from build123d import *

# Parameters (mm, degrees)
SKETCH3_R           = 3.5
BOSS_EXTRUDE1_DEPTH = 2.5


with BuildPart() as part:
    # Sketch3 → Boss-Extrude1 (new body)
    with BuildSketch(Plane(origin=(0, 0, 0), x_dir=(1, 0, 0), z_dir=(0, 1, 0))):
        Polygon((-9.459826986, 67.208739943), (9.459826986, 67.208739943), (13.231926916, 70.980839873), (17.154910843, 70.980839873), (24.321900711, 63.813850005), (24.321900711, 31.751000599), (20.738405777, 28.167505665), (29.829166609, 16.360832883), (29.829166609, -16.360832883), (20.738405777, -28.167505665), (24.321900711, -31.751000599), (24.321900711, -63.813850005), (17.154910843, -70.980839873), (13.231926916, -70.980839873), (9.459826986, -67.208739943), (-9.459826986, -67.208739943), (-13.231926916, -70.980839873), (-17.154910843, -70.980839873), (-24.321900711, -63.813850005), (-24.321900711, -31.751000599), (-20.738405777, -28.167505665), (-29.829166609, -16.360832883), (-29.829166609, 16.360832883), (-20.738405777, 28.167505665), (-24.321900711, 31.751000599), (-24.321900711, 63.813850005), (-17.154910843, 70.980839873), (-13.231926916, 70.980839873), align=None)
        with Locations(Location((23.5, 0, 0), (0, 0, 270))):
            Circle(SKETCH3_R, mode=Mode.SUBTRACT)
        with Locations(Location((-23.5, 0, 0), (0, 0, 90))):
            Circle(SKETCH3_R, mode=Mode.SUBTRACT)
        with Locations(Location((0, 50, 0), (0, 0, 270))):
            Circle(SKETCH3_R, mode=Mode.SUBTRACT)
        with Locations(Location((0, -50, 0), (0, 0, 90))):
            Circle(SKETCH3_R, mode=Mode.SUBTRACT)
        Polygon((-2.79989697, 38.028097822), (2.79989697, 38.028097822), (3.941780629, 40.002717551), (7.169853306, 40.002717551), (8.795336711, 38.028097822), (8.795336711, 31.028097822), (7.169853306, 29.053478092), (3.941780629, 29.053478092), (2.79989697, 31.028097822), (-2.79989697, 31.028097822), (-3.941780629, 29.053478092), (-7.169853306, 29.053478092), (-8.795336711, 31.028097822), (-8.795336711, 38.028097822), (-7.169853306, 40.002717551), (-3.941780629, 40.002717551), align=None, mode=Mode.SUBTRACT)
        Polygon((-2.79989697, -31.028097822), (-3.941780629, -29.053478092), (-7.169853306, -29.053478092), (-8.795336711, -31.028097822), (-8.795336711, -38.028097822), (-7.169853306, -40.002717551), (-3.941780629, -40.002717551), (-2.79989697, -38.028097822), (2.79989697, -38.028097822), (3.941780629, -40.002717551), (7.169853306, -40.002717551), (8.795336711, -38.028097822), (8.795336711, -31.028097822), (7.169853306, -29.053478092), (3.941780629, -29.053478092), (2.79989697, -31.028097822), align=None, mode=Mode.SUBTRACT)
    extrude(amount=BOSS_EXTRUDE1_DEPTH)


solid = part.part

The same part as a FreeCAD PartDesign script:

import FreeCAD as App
import Part
import Sketcher

V = App.Vector

doc = App.newDocument("Part")
body = doc.addObject("PartDesign::Body", "Body")

# Sketch on XZ plane
sketch1 = body.newObject("Sketcher::SketchObject", "Sketch")
sketch1.AttachmentSupport = (doc.getObject("XZ_Plane"), [""])
sketch1.MapMode = "FlatFace"
sketch1.addGeometry(Part.LineSegment(V(9.459827, -67.20874, 0), V(-9.459827, -67.20874, 0)), False)
sketch1.addGeometry(Part.LineSegment(V(-9.459827, -67.20874, 0), V(-13.231927, -70.98084, 0)), False)
sketch1.addGeometry(Part.LineSegment(V(-13.231927, -70.98084, 0), V(-17.154911, -70.98084, 0)), False)
sketch1.addGeometry(Part.LineSegment(V(-17.154911, -70.98084, 0), V(-24.321901, -63.81385, 0)), False)
sketch1.addGeometry(Part.LineSegment(V(-24.321901, -63.81385, 0), V(-24.321901, -31.751001, 0)), False)
sketch1.addGeometry(Part.LineSegment(V(-24.321901, -31.751001, 0), V(-20.738406, -28.167506, 0)), False)
sketch1.addGeometry(Part.LineSegment(V(-20.738406, -28.167506, 0), V(-29.829167, -16.360833, 0)), False)
sketch1.addGeometry(Part.LineSegment(V(-29.829167, -16.360833, 0), V(-29.829167, 16.360833, 0)), False)
sketch1.addGeometry(Part.LineSegment(V(-29.829167, 16.360833, 0), V(-20.738406, 28.167506, 0)), False)
sketch1.addGeometry(Part.LineSegment(V(-20.738406, 28.167506, 0), V(-24.321901, 31.751001, 0)), False)
sketch1.addGeometry(Part.LineSegment(V(-24.321901, 31.751001, 0), V(-24.321901, 63.81385, 0)), False)
sketch1.addGeometry(Part.LineSegment(V(-24.321901, 63.81385, 0), V(-17.154911, 70.98084, 0)), False)
sketch1.addGeometry(Part.LineSegment(V(-17.154911, 70.98084, 0), V(-13.231927, 70.98084, 0)), False)
sketch1.addGeometry(Part.LineSegment(V(-13.231927, 70.98084, 0), V(-9.459827, 67.20874, 0)), False)
sketch1.addGeometry(Part.LineSegment(V(-9.459827, 67.20874, 0), V(9.459827, 67.20874, 0)), False)
sketch1.addGeometry(Part.LineSegment(V(9.459827, 67.20874, 0), V(13.231927, 70.98084, 0)), False)
sketch1.addGeometry(Part.LineSegment(V(13.231927, 70.98084, 0), V(17.154911, 70.98084, 0)), False)
sketch1.addGeometry(Part.LineSegment(V(17.154911, 70.98084, 0), V(24.321901, 63.81385, 0)), False)
sketch1.addGeometry(Part.LineSegment(V(24.321901, 63.81385, 0), V(24.321901, 31.751001, 0)), False)
sketch1.addGeometry(Part.LineSegment(V(24.321901, 31.751001, 0), V(20.738406, 28.167506, 0)), False)
sketch1.addGeometry(Part.LineSegment(V(20.738406, 28.167506, 0), V(29.829167, 16.360833, 0)), False)
sketch1.addGeometry(Part.LineSegment(V(29.829167, 16.360833, 0), V(29.829167, -16.360833, 0)), False)
sketch1.addGeometry(Part.LineSegment(V(29.829167, -16.360833, 0), V(20.738406, -28.167506, 0)), False)
sketch1.addGeometry(Part.LineSegment(V(20.738406, -28.167506, 0), V(24.321901, -31.751001, 0)), False)
sketch1.addGeometry(Part.LineSegment(V(24.321901, -31.751001, 0), V(24.321901, -63.81385, 0)), False)
sketch1.addGeometry(Part.LineSegment(V(24.321901, -63.81385, 0), V(17.154911, -70.98084, 0)), False)
sketch1.addGeometry(Part.LineSegment(V(17.154911, -70.98084, 0), V(13.231927, -70.98084, 0)), False)
sketch1.addGeometry(Part.LineSegment(V(13.231927, -70.98084, 0), V(9.459827, -67.20874, 0)), False)
sketch1.addGeometry(Part.Circle(V(23.5, 0, 0), V(0, 0, 1), 3.5), False)
sketch1.addGeometry(Part.Circle(V(0, 50, 0), V(0, 0, 1), 3.5), False)
sketch1.addGeometry(Part.LineSegment(V(-2.799897, 31.028098, 0), V(2.799897, 31.028098, 0)), False)
sketch1.addGeometry(Part.LineSegment(V(2.799897, 31.028098, 0), V(3.941781, 29.053478, 0)), False)
sketch1.addGeometry(Part.LineSegment(V(3.941781, 29.053478, 0), V(7.169853, 29.053478, 0)), False)
sketch1.addGeometry(Part.LineSegment(V(7.169853, 29.053478, 0), V(8.795337, 31.028098, 0)), False)
sketch1.addGeometry(Part.LineSegment(V(8.795337, 31.028098, 0), V(8.795337, 38.028098, 0)), False)
sketch1.addGeometry(Part.LineSegment(V(8.795337, 38.028098, 0), V(7.169853, 40.002718, 0)), False)
sketch1.addGeometry(Part.LineSegment(V(7.169853, 40.002718, 0), V(3.941781, 40.002718, 0)), False)
sketch1.addGeometry(Part.LineSegment(V(3.941781, 40.002718, 0), V(2.799897, 38.028098, 0)), False)
sketch1.addGeometry(Part.LineSegment(V(2.799897, 38.028098, 0), V(-2.799897, 38.028098, 0)), False)
sketch1.addGeometry(Part.LineSegment(V(-2.799897, 38.028098, 0), V(-3.941781, 40.002718, 0)), False)
sketch1.addGeometry(Part.LineSegment(V(-3.941781, 40.002718, 0), V(-7.169853, 40.002718, 0)), False)
sketch1.addGeometry(Part.LineSegment(V(-7.169853, 40.002718, 0), V(-8.795337, 38.028098, 0)), False)
sketch1.addGeometry(Part.LineSegment(V(-8.795337, 38.028098, 0), V(-8.795337, 31.028098, 0)), False)
sketch1.addGeometry(Part.LineSegment(V(-8.795337, 31.028098, 0), V(-7.169853, 29.053478, 0)), False)
sketch1.addGeometry(Part.LineSegment(V(-7.169853, 29.053478, 0), V(-3.941781, 29.053478, 0)), False)
sketch1.addGeometry(Part.LineSegment(V(-3.941781, 29.053478, 0), V(-2.799897, 31.028098, 0)), False)
sketch1.addGeometry(Part.Circle(V(-23.5, 0, 0), V(0, 0, 1), 3.5), False)
sketch1.addGeometry(Part.LineSegment(V(-2.799897, -38.028098, 0), V(2.799897, -38.028098, 0)), False)
sketch1.addGeometry(Part.LineSegment(V(2.799897, -38.028098, 0), V(3.941781, -40.002718, 0)), False)
sketch1.addGeometry(Part.LineSegment(V(3.941781, -40.002718, 0), V(7.169853, -40.002718, 0)), False)
sketch1.addGeometry(Part.LineSegment(V(7.169853, -40.002718, 0), V(8.795337, -38.028098, 0)), False)
sketch1.addGeometry(Part.LineSegment(V(8.795337, -38.028098, 0), V(8.795337, -31.028098, 0)), False)
sketch1.addGeometry(Part.LineSegment(V(8.795337, -31.028098, 0), V(7.169853, -29.053478, 0)), False)
sketch1.addGeometry(Part.LineSegment(V(7.169853, -29.053478, 0), V(3.941781, -29.053478, 0)), False)
sketch1.addGeometry(Part.LineSegment(V(3.941781, -29.053478, 0), V(2.799897, -31.028098, 0)), False)
sketch1.addGeometry(Part.LineSegment(V(2.799897, -31.028098, 0), V(-2.799897, -31.028098, 0)), False)
sketch1.addGeometry(Part.LineSegment(V(-2.799897, -31.028098, 0), V(-3.941781, -29.053478, 0)), False)
sketch1.addGeometry(Part.LineSegment(V(-3.941781, -29.053478, 0), V(-7.169853, -29.053478, 0)), False)
sketch1.addGeometry(Part.LineSegment(V(-7.169853, -29.053478, 0), V(-8.795337, -31.028098, 0)), False)
sketch1.addGeometry(Part.LineSegment(V(-8.795337, -31.028098, 0), V(-8.795337, -38.028098, 0)), False)
sketch1.addGeometry(Part.LineSegment(V(-8.795337, -38.028098, 0), V(-7.169853, -40.002718, 0)), False)
sketch1.addGeometry(Part.LineSegment(V(-7.169853, -40.002718, 0), V(-3.941781, -40.002718, 0)), False)
sketch1.addGeometry(Part.LineSegment(V(-3.941781, -40.002718, 0), V(-2.799897, -38.028098, 0)), False)
sketch1.addGeometry(Part.Circle(V(0, -50, 0), V(0, 0, 1), 3.5), False)
sketch1.addConstraint(Sketcher.Constraint("Coincident", 0, 2, 1, 1))
sketch1.addConstraint(Sketcher.Constraint("Coincident", 1, 2, 2, 1))
sketch1.addConstraint(Sketcher.Constraint("Coincident", 2, 2, 3, 1))
sketch1.addConstraint(Sketcher.Constraint("Coincident", 3, 2, 4, 1))
sketch1.addConstraint(Sketcher.Constraint("Coincident", 4, 2, 5, 1))
sketch1.addConstraint(Sketcher.Constraint("Coincident", 5, 2, 6, 1))
sketch1.addConstraint(Sketcher.Constraint("Coincident", 6, 2, 7, 1))
sketch1.addConstraint(Sketcher.Constraint("Coincident", 7, 2, 8, 1))
sketch1.addConstraint(Sketcher.Constraint("Coincident", 8, 2, 9, 1))
sketch1.addConstraint(Sketcher.Constraint("Coincident", 9, 2, 10, 1))
sketch1.addConstraint(Sketcher.Constraint("Coincident", 10, 2, 11, 1))
sketch1.addConstraint(Sketcher.Constraint("Coincident", 11, 2, 12, 1))
sketch1.addConstraint(Sketcher.Constraint("Coincident", 12, 2, 13, 1))
sketch1.addConstraint(Sketcher.Constraint("Coincident", 13, 2, 14, 1))
sketch1.addConstraint(Sketcher.Constraint("Coincident", 14, 2, 15, 1))
sketch1.addConstraint(Sketcher.Constraint("Coincident", 15, 2, 16, 1))
sketch1.addConstraint(Sketcher.Constraint("Coincident", 16, 2, 17, 1))
sketch1.addConstraint(Sketcher.Constraint("Coincident", 17, 2, 18, 1))
sketch1.addConstraint(Sketcher.Constraint("Coincident", 18, 2, 19, 1))
sketch1.addConstraint(Sketcher.Constraint("Coincident", 19, 2, 20, 1))
sketch1.addConstraint(Sketcher.Constraint("Coincident", 20, 2, 21, 1))
sketch1.addConstraint(Sketcher.Constraint("Coincident", 21, 2, 22, 1))
sketch1.addConstraint(Sketcher.Constraint("Coincident", 22, 2, 23, 1))
sketch1.addConstraint(Sketcher.Constraint("Coincident", 23, 2, 24, 1))
sketch1.addConstraint(Sketcher.Constraint("Coincident", 24, 2, 25, 1))
sketch1.addConstraint(Sketcher.Constraint("Coincident", 25, 2, 26, 1))
sketch1.addConstraint(Sketcher.Constraint("Coincident", 26, 2, 27, 1))
sketch1.addConstraint(Sketcher.Constraint("Coincident", 27, 2, 0, 1))
sketch1.addConstraint(Sketcher.Constraint("Coincident", 30, 2, 31, 1))
sketch1.addConstraint(Sketcher.Constraint("Coincident", 31, 2, 32, 1))
sketch1.addConstraint(Sketcher.Constraint("Coincident", 32, 2, 33, 1))
sketch1.addConstraint(Sketcher.Constraint("Coincident", 33, 2, 34, 1))
sketch1.addConstraint(Sketcher.Constraint("Coincident", 34, 2, 35, 1))
sketch1.addConstraint(Sketcher.Constraint("Coincident", 35, 2, 36, 1))
sketch1.addConstraint(Sketcher.Constraint("Coincident", 36, 2, 37, 1))
sketch1.addConstraint(Sketcher.Constraint("Coincident", 37, 2, 38, 1))
sketch1.addConstraint(Sketcher.Constraint("Coincident", 38, 2, 39, 1))
sketch1.addConstraint(Sketcher.Constraint("Coincident", 39, 2, 40, 1))
sketch1.addConstraint(Sketcher.Constraint("Coincident", 40, 2, 41, 1))
sketch1.addConstraint(Sketcher.Constraint("Coincident", 41, 2, 42, 1))
sketch1.addConstraint(Sketcher.Constraint("Coincident", 42, 2, 43, 1))
sketch1.addConstraint(Sketcher.Constraint("Coincident", 43, 2, 44, 1))
sketch1.addConstraint(Sketcher.Constraint("Coincident", 44, 2, 45, 1))
sketch1.addConstraint(Sketcher.Constraint("Coincident", 45, 2, 30, 1))
sketch1.addConstraint(Sketcher.Constraint("Coincident", 47, 2, 48, 1))
sketch1.addConstraint(Sketcher.Constraint("Coincident", 48, 2, 49, 1))
sketch1.addConstraint(Sketcher.Constraint("Coincident", 49, 2, 50, 1))
sketch1.addConstraint(Sketcher.Constraint("Coincident", 50, 2, 51, 1))
sketch1.addConstraint(Sketcher.Constraint("Coincident", 51, 2, 52, 1))
sketch1.addConstraint(Sketcher.Constraint("Coincident", 52, 2, 53, 1))
sketch1.addConstraint(Sketcher.Constraint("Coincident", 53, 2, 54, 1))
sketch1.addConstraint(Sketcher.Constraint("Coincident", 54, 2, 55, 1))
sketch1.addConstraint(Sketcher.Constraint("Coincident", 55, 2, 56, 1))
sketch1.addConstraint(Sketcher.Constraint("Coincident", 56, 2, 57, 1))
sketch1.addConstraint(Sketcher.Constraint("Coincident", 57, 2, 58, 1))
sketch1.addConstraint(Sketcher.Constraint("Coincident", 58, 2, 59, 1))
sketch1.addConstraint(Sketcher.Constraint("Coincident", 59, 2, 60, 1))
sketch1.addConstraint(Sketcher.Constraint("Coincident", 60, 2, 61, 1))
sketch1.addConstraint(Sketcher.Constraint("Coincident", 61, 2, 62, 1))
sketch1.addConstraint(Sketcher.Constraint("Coincident", 62, 2, 47, 1))
sketch1.addConstraint(Sketcher.Constraint("Horizontal", 0))
sketch1.addConstraint(Sketcher.Constraint("Horizontal", 2))
sketch1.addConstraint(Sketcher.Constraint("Vertical", 4))
sketch1.addConstraint(Sketcher.Constraint("Vertical", 7))
sketch1.addConstraint(Sketcher.Constraint("Vertical", 10))
sketch1.addConstraint(Sketcher.Constraint("Horizontal", 12))
sketch1.addConstraint(Sketcher.Constraint("Horizontal", 14))
sketch1.addConstraint(Sketcher.Constraint("Horizontal", 16))
sketch1.addConstraint(Sketcher.Constraint("Vertical", 18))
sketch1.addConstraint(Sketcher.Constraint("Vertical", 21))
sketch1.addConstraint(Sketcher.Constraint("Vertical", 24))
sketch1.addConstraint(Sketcher.Constraint("Horizontal", 26))
sketch1.addConstraint(Sketcher.Constraint("Horizontal", 30))
sketch1.addConstraint(Sketcher.Constraint("Horizontal", 32))
sketch1.addConstraint(Sketcher.Constraint("Vertical", 34))
sketch1.addConstraint(Sketcher.Constraint("Horizontal", 36))
sketch1.addConstraint(Sketcher.Constraint("Horizontal", 38))
sketch1.addConstraint(Sketcher.Constraint("Horizontal", 40))
sketch1.addConstraint(Sketcher.Constraint("Vertical", 42))
sketch1.addConstraint(Sketcher.Constraint("Horizontal", 44))
sketch1.addConstraint(Sketcher.Constraint("Horizontal", 47))
sketch1.addConstraint(Sketcher.Constraint("Horizontal", 49))
sketch1.addConstraint(Sketcher.Constraint("Vertical", 51))
sketch1.addConstraint(Sketcher.Constraint("Horizontal", 53))
sketch1.addConstraint(Sketcher.Constraint("Horizontal", 55))
sketch1.addConstraint(Sketcher.Constraint("Horizontal", 57))
sketch1.addConstraint(Sketcher.Constraint("Vertical", 59))
sketch1.addConstraint(Sketcher.Constraint("Horizontal", 61))
sketch1.addConstraint(Sketcher.Constraint("Equal", 28, 29))
sketch1.addConstraint(Sketcher.Constraint("Equal", 29, 46))
sketch1.addConstraint(Sketcher.Constraint("Equal", 46, 63))
sketch1.addConstraint(Sketcher.Constraint("Symmetric", 28, 3, 46, 3, -1, 1))
sketch1.addConstraint(Sketcher.Constraint("Symmetric", 29, 3, 63, 3, -1, 1))
sketch1.addConstraint(Sketcher.Constraint("Symmetric", 0, 2, 14, 2, -1, 1))
sketch1.addConstraint(Sketcher.Constraint("Symmetric", 1, 2, 15, 2, -1, 1))
sketch1.addConstraint(Sketcher.Constraint("Symmetric", 3, 2, 17, 2, -1, 1))
sketch1.addConstraint(Sketcher.Constraint("Symmetric", 5, 2, 19, 2, -1, 1))
sketch1.addConstraint(Sketcher.Constraint("Symmetric", 6, 2, 20, 2, -1, 1))
sketch1.addConstraint(Sketcher.Constraint("Symmetric", 8, 2, 22, 2, -1, 1))
sketch1.addConstraint(Sketcher.Constraint("Symmetric", 9, 2, 23, 2, -1, 1))
sketch1.addConstraint(Sketcher.Constraint("Symmetric", 11, 2, 25, 2, -1, 1))
sketch1.addConstraint(Sketcher.Constraint("Symmetric", 38, 2, 47, 2, -1, 1))
sketch1.addConstraint(Sketcher.Constraint("Symmetric", 39, 2, 48, 2, -1, 1))
sketch1.addConstraint(Sketcher.Constraint("Symmetric", 41, 2, 50, 2, -1, 1))
sketch1.addConstraint(Sketcher.Constraint("Symmetric", 43, 2, 52, 2, -1, 1))
sketch1.addConstraint(Sketcher.Constraint("Symmetric", 45, 2, 54, 2, -1, 1))
sketch1.addConstraint(Sketcher.Constraint("Symmetric", 31, 2, 56, 2, -1, 1))
sketch1.addConstraint(Sketcher.Constraint("Symmetric", 33, 2, 58, 2, -1, 1))
sketch1.addConstraint(Sketcher.Constraint("Symmetric", 35, 2, 60, 2, -1, 1))
sketch1.addConstraint(Sketcher.Constraint("Symmetric", 12, 2, 15, 2, -2))
sketch1.addConstraint(Sketcher.Constraint("Symmetric", 10, 2, 17, 2, -2))
sketch1.addConstraint(Sketcher.Constraint("Symmetric", 8, 2, 19, 2, -2))
sketch1.addConstraint(Sketcher.Constraint("Symmetric", 36, 2, 39, 2, -2))
sketch1.addConstraint(Sketcher.Constraint("Symmetric", 34, 2, 41, 2, -2))
sketch1.addConstraint(Sketcher.Constraint("Symmetric", 32, 2, 43, 2, -2))
sketch1.addConstraint(Sketcher.Constraint("PointOnObject", 28, 3, -1))
sketch1.addConstraint(Sketcher.Constraint("PointOnObject", 29, 3, -2))
sketch1.addConstraint(Sketcher.Constraint("Perpendicular", 1, 3))
sketch1.addConstraint(Sketcher.Constraint("Perpendicular", 3, 5))
sketch1.addConstraint(Sketcher.Constraint("Perpendicular", 5, 9))
sketch1.addConstraint(Sketcher.Constraint("Perpendicular", 9, 11))
sketch1.addConstraint(Sketcher.Constraint("Perpendicular", 11, 13))
sketch1.addConstraint(Sketcher.Constraint("Perpendicular", 15, 17))
sketch1.addConstraint(Sketcher.Constraint("Perpendicular", 17, 19))
sketch1.addConstraint(Sketcher.Constraint("Parallel", 8, 22))
sketch1.addConstraint(Sketcher.Constraint("Perpendicular", 23, 25))
sketch1.addConstraint(Sketcher.Constraint("Perpendicular", 25, 27))
sketch1.addConstraint(Sketcher.Constraint("Parallel", 31, 39))
sketch1.addConstraint(Sketcher.Constraint("Parallel", 33, 41))
sketch1.addConstraint(Sketcher.Constraint("Parallel", 35, 43))
sketch1.addConstraint(Sketcher.Constraint("Parallel", 37, 45))
sketch1.addConstraint(Sketcher.Constraint("Parallel", 41, 50))
sketch1.addConstraint(Sketcher.Constraint("Parallel", 43, 52))
sketch1.addConstraint(Sketcher.Constraint("Parallel", 45, 54))
sketch1.addConstraint(Sketcher.Constraint("Parallel", 48, 56))
sketch1.addConstraint(Sketcher.Constraint("Parallel", 50, 58))
sketch1.addConstraint(Sketcher.Constraint("Parallel", 52, 60))
sketch1.addConstraint(Sketcher.Constraint("Parallel", 54, 62))
sketch1.addConstraint(Sketcher.Constraint("Horizontal", 9, 2, 18, 2))
sketch1.addConstraint(Sketcher.Constraint("Horizontal", 7, 2, 20, 2))
sketch1.addConstraint(Sketcher.Constraint("Horizontal", 30, 2, 33, 2))
sketch1.addConstraint(Sketcher.Constraint("Horizontal", 34, 2, 37, 2))
sketch1.addConstraint(Sketcher.Constraint("Horizontal", 33, 2, 42, 2))
sketch1.addConstraint(Sketcher.Constraint("Vertical", 15, 2, 26, 2))
sketch1.addConstraint(Sketcher.Constraint("Vertical", 32, 2, 35, 2))
sketch1.addConstraint(Sketcher.Constraint("Vertical", 31, 2, 36, 2))
sketch1.addConstraint(Sketcher.Constraint("Vertical", 30, 2, 37, 2))
sketch1.addConstraint(Sketcher.Constraint("Vertical", 39, 2, 44, 2))
sketch1.addConstraint(Sketcher.Constraint("Vertical", 56, 2, 61, 2))
sketch1.addConstraint(Sketcher.Constraint("Diameter", 28, 7.0))
sketch1.addConstraint(Sketcher.Constraint("DistanceY", 34, 1, 34, 2, 7.0))
sketch1.addConstraint(Sketcher.Constraint("DistanceY", -1, 1, 29, 3, 50.0))
sketch1.addConstraint(Sketcher.Constraint("DistanceX", -1, 1, 28, 3, 23.5))
sketch1.addConstraint(Sketcher.Constraint("DistanceY", 4, 2, -1, 1, 31.751001))
sketch1.addConstraint(Sketcher.Constraint("Distance", 33, 2.5576))
sketch1.addConstraint(Sketcher.Constraint("DistanceY", 4, 1, 4, 2, 32.062849))
sketch1.addConstraint(Sketcher.Constraint("DistanceX", 3, 2, -1, 1, 24.321901))
sketch1.addConstraint(Sketcher.Constraint("Distance", 6, 14.900988))
sketch1.addConstraint(Sketcher.Constraint("DistanceX", 0, 2, 0, 1, 18.919654))
sketch1.addConstraint(Sketcher.Constraint("DistanceX", 2, 2, 2, 1, 3.922984))
sketch1.addConstraint(Sketcher.Constraint("DistanceX", 30, 1, 30, 2, 5.599794))
sketch1.addConstraint(Sketcher.Constraint("DistanceX", 32, 1, 32, 2, 3.228073))
sketch1.addConstraint(Sketcher.Constraint("DistanceY", 7, 1, 7, 2, 32.721666))
sketch1.addConstraint(Sketcher.Constraint("DistanceY", 0, 2, -1, 1, 67.20874))
sketch1.addConstraint(Sketcher.Constraint("DistanceX", -1, 1, 31, 2, 3.941781))
sketch1.addConstraint(Sketcher.Constraint("DistanceY", -1, 1, 31, 2, 29.053478))
sketch1.addConstraint(Sketcher.Constraint("Distance", 5, 5.067827))
sketch1.addConstraint(Sketcher.Constraint("Distance", 31, 2.281013))
pad1 = body.newObject("PartDesign::Pad", "Pad")
pad1.Profile = sketch1
pad1.Length = 2.5
pad1.Reversed = True

doc.recompute()
